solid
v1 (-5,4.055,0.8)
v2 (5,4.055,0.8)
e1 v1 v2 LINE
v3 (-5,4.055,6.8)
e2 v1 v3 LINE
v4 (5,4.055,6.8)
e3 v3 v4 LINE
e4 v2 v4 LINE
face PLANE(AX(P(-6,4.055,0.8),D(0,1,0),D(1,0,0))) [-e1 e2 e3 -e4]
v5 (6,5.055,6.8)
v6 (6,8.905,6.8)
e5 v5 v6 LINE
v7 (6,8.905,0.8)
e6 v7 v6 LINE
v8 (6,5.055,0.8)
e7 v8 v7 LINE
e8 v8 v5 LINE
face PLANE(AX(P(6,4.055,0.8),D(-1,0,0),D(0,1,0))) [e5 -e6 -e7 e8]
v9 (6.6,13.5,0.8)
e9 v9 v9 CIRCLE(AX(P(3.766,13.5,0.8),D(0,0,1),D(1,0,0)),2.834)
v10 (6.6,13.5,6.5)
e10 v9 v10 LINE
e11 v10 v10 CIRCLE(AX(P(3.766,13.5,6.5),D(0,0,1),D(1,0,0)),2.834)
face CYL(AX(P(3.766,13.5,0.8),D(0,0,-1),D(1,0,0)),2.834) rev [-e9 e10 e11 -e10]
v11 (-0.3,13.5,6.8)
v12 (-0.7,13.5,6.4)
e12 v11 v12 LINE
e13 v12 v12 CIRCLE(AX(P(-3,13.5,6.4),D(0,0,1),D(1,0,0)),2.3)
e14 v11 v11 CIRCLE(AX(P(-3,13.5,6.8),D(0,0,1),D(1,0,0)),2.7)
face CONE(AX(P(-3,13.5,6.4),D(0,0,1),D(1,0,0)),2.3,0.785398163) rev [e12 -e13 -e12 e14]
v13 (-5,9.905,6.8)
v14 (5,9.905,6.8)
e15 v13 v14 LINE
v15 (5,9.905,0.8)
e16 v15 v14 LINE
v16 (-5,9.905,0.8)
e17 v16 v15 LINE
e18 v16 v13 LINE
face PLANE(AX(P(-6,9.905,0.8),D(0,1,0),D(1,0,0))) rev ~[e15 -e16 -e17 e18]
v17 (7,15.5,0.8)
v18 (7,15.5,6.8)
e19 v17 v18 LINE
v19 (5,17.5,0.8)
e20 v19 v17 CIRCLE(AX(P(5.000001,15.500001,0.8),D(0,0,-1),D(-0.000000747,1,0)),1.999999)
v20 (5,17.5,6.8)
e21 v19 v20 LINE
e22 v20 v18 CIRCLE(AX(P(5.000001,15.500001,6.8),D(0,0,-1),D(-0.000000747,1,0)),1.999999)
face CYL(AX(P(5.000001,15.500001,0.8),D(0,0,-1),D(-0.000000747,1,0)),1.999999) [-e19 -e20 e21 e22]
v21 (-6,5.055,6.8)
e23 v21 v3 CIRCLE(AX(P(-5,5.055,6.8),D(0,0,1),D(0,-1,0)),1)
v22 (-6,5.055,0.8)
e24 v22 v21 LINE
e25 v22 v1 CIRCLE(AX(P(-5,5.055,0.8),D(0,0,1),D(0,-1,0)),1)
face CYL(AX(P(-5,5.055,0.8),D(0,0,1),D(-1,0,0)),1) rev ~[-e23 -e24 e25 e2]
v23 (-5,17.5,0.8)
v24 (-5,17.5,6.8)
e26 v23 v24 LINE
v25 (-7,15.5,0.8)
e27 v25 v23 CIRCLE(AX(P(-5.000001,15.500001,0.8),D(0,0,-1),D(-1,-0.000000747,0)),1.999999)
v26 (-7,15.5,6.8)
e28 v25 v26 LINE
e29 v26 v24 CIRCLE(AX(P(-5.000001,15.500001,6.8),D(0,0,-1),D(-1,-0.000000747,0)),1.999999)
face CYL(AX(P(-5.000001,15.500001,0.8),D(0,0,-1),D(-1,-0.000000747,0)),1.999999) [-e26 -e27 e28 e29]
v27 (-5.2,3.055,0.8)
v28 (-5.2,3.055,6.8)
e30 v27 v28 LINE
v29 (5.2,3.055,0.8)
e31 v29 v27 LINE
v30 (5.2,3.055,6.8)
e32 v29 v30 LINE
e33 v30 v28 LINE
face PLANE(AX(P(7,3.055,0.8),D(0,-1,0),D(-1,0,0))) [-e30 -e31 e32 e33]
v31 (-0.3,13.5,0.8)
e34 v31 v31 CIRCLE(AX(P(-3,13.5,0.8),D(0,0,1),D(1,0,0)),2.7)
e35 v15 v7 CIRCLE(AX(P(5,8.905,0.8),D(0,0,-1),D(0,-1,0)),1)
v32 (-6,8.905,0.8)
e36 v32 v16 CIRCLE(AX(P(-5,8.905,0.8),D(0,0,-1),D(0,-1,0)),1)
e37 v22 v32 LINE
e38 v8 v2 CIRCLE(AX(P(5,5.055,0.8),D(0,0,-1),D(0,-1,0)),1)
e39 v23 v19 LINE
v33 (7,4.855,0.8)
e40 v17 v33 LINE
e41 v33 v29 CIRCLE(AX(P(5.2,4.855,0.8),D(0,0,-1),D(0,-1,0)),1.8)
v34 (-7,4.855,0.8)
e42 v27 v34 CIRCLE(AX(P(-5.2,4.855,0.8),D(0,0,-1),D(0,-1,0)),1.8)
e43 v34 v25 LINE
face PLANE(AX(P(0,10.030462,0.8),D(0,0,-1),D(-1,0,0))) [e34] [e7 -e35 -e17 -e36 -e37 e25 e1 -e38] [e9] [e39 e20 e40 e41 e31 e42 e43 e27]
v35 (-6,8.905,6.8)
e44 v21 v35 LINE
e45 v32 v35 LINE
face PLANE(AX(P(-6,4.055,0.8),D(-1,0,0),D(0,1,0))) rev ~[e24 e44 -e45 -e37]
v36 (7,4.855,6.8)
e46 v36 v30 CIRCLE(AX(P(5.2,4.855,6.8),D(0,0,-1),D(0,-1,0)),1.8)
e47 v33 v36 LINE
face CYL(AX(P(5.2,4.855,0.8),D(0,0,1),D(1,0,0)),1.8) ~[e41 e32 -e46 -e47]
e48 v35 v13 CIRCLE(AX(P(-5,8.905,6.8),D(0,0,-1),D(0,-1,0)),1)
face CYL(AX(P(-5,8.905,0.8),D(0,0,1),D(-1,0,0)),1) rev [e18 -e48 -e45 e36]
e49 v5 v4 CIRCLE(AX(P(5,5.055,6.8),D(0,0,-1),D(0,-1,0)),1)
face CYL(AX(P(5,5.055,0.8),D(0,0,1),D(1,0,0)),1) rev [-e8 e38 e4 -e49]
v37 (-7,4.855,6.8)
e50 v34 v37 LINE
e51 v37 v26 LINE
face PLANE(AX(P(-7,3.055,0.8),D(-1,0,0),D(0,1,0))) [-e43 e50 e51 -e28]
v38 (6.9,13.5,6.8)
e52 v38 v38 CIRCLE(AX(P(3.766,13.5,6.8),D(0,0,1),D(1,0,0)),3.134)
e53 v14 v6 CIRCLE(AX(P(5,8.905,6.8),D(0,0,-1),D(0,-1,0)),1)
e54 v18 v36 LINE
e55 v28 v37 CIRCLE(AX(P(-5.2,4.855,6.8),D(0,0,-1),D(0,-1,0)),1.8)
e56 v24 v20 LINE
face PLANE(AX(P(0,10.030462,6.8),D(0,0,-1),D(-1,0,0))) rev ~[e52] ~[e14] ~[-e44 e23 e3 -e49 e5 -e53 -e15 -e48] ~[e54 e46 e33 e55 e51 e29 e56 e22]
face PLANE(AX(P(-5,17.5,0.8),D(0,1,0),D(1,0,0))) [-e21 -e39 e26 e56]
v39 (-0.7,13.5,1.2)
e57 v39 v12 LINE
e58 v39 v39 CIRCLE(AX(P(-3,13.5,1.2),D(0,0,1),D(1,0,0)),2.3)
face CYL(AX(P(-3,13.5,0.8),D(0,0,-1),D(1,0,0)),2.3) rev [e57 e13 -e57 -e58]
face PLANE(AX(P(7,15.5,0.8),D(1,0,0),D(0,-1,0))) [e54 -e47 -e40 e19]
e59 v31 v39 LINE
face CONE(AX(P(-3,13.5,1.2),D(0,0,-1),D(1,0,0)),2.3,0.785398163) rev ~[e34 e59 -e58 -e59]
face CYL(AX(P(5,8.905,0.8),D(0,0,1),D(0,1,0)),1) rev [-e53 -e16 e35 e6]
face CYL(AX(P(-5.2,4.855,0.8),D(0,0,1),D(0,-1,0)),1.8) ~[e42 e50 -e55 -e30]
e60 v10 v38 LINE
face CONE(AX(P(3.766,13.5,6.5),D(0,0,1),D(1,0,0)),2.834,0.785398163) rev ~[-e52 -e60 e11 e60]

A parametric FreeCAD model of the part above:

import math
import FreeCAD as App
import Part
import Sketcher

V = App.Vector


def edges_at(feature, points):
    """Names of the edges that pass closest to the given points."""
    edges = feature.Shape.Edges
    near = lambda p: min(range(len(edges)), key=lambda i: edges[i].distToShape(Part.Vertex(*p))[0])
    return sorted({f"Edge{near(p) + 1}" for p in points})


def add_polygon(sketch, points):
    """Adds a closed chain of lines whose ends are joined by coincident constraints."""
    first, n = sketch.GeometryCount, len(points)
    for a, b in zip(points, points[1:] + points[:1]):
        sketch.addGeometry(Part.LineSegment(App.Vector(*a, 0), App.Vector(*b, 0)), False)
    for i in range(n):
        sketch.addConstraint(Sketcher.Constraint("Coincident", first + i, 2, first + (i + 1) % n, 1))

doc = App.newDocument("Part")
body = doc.addObject("PartDesign::Body", "Body")

# Sketch on XY plane
sketch1 = body.newObject("Sketcher::SketchObject", "Sketch")
sketch1.AttachmentSupport = (doc.getObject("XY_Plane"), [""])
sketch1.MapMode = "FlatFace"
sketch1.addGeometry(Part.LineSegment(V(7, 3.055, 0), V(7, 15.5, 0)), False)  # 0
sketch1.addGeometry(Part.ArcOfCircle(Part.Circle(V(5.000001, 15.500001, 0), V(0, 0, 1), 1.999999), math.radians(-0.000043), math.radians(90.000043)), False)  # 1
sketch1.addGeometry(Part.LineSegment(V(5, 17.5, 0), V(-5, 17.5, 0)), False)  # 2
sketch1.addGeometry(Part.ArcOfCircle(Part.Circle(V(-5.000001, 15.500001, 0), V(0, 0, 1), 1.999999), math.radians(89.999957), math.radians(180.000043)), False)  # 3
sketch1.addGeometry(Part.LineSegment(V(-7, 15.5, 0), V(-7, 3.055, 0)), False)  # 4
sketch1.addGeometry(Part.LineSegment(V(-7, 3.055, 0), V(7, 3.055, 0)), False)  # 5
add_polygon(sketch1, [(-6, 4.055), (-6, 9.905), (6, 9.905), (6, 4.055)])  # lines 6-9
sketch1.addGeometry(Part.Circle(V(3.766, 13.5, 0), V(0, 0, 1), 2.834), False)  # 10
sketch1.addGeometry(Part.Circle(V(-3, 13.5, 0), V(0, 0, 1), 2.3), False)  # 11
sketch1.addConstraint(Sketcher.Constraint("Tangent", 0, 2, 1, 1))
sketch1.addConstraint(Sketcher.Constraint("Tangent", 1, 2, 2, 1))
sketch1.addConstraint(Sketcher.Constraint("Tangent", 2, 2, 3, 1))
sketch1.addConstraint(Sketcher.Constraint("Tangent", 3, 2, 4, 1))
sketch1.addConstraint(Sketcher.Constraint("Coincident", 4, 2, 5, 1))
sketch1.addConstraint(Sketcher.Constraint("Coincident", 5, 2, 0, 1))
sketch1.addConstraint(Sketcher.Constraint("Vertical", 0))
sketch1.addConstraint(Sketcher.Constraint("Horizontal", 2))
sketch1.addConstraint(Sketcher.Constraint("Vertical", 4))
sketch1.addConstraint(Sketcher.Constraint("Horizontal", 5))
sketch1.addConstraint(Sketcher.Constraint("Vertical", 6))
sketch1.addConstraint(Sketcher.Constraint("Horizontal", 7))
sketch1.addConstraint(Sketcher.Constraint("Vertical", 8))
sketch1.addConstraint(Sketcher.Constraint("Horizontal", 9))
sketch1.addConstraint(Sketcher.Constraint("Equal", 1, 3))
sketch1.addConstraint(Sketcher.Constraint("Horizontal", 10, 3, 11, 3))
sketch1.addConstraint(Sketcher.Constraint("Radius", 1, 1.999999))
sketch1.addConstraint(Sketcher.Constraint("Diameter", 11, 4.6))
sketch1.addConstraint(Sketcher.Constraint("DistanceX", 2, 2, 2, 1, 10.0))
sketch1.addConstraint(Sketcher.Constraint("DistanceX", 7, 1, 7, 2, 12.0))
sketch1.addConstraint(Sketcher.Constraint("Diameter", 10, 5.668))
sketch1.addConstraint(Sketcher.Constraint("DistanceX", -1, 1, 1, 3, 5.000001))
sketch1.addConstraint(Sketcher.Constraint("DistanceX", 11, 3, -1, 1, 3.0))
sketch1.addConstraint(Sketcher.Constraint("DistanceX", 6, 2, -1, 1, 6.0))
sketch1.addConstraint(Sketcher.Constraint("DistanceY", 10, 3, 1, 3, 2.000001))
sketch1.addConstraint(Sketcher.Constraint("DistanceY", 5, 2, 8, 2, 1.0))
sketch1.addConstraint(Sketcher.Constraint("DistanceY", 6, 1, 6, 2, 5.85))
sketch1.addConstraint(Sketcher.Constraint("DistanceY", -1, 1, 1, 3, 15.500001))
sketch1.addConstraint(Sketcher.Constraint("DistanceY", 0, 1, 0, 2, 12.445))
sketch1.addConstraint(Sketcher.Constraint("DistanceX", -1, 1, 10, 3, 3.766))
pad1 = body.newObject("PartDesign::Pad", "Pad")
pad1.Profile = sketch1
pad1.Length = 6
doc.recompute()

fillet = body.newObject("PartDesign::Fillet", "Fillet")
fillet.Base = (pad1, edges_at(pad1, [
    (6, 9.905, 3),
    (6, 4.055, 3),
    (-6, 9.905, 3),
    (-6, 4.055, 3),
]))
fillet.Radius = 1
doc.recompute()

chamfer = body.newObject("PartDesign::Chamfer", "Chamfer")
chamfer.Base = (fillet, edges_at(fillet, [(-5.3, 13.5, 0), (-5.3, 13.5, 6)]))
chamfer.Size = 0.4
doc.recompute()

chamfer2 = body.newObject("PartDesign::Chamfer", "Chamfer001")
chamfer2.Base = (chamfer, edges_at(chamfer, [(0.932, 13.5, 6)]))
chamfer2.Size = 0.3
doc.recompute()

fillet2 = body.newObject("PartDesign::Fillet", "Fillet001")
fillet2.Base = (chamfer2, edges_at(chamfer2, [(-7, 3.055, 3), (7, 3.055, 3)]))
fillet2.Radius = 1.8
body2 = doc.addObject("PartDesign::Body", "Body001")
doc.recompute()

body.Placement = App.Placement(V(0, 0, 0.8), App.Rotation(V(0, 0, 1), 0))
boolean = body2.newObject("PartDesign::Boolean", "Boolean")
boolean.Type = "Fuse"
boolean.addObjects([body])

doc.recompute()
